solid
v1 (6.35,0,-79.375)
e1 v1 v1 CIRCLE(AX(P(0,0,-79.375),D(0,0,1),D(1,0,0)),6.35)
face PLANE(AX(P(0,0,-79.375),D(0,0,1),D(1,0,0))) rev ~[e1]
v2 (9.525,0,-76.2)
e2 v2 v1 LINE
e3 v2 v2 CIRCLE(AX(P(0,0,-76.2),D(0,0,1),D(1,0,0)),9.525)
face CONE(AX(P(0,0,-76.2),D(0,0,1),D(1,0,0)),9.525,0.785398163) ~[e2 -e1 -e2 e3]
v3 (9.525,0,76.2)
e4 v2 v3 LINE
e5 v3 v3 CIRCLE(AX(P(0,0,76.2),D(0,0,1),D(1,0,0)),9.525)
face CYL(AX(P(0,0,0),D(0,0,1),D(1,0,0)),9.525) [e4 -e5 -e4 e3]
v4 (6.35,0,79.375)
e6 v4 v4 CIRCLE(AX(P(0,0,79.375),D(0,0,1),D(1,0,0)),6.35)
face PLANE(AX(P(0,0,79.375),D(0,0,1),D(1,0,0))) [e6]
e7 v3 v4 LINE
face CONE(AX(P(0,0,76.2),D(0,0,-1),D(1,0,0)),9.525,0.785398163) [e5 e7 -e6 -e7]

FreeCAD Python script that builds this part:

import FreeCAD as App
import Part
import Sketcher
Q = App.Units.Quantity


def edges_at(feature, points):
    """Names of the edges that pass closest to the given points."""
    edges = feature.Shape.Edges
    near = lambda p: min(range(len(edges)), key=lambda i: edges[i].distToShape(Part.Vertex(*p))[0])
    return sorted({f"Edge{near(p) + 1}" for p in points})

doc = App.newDocument("Part")
body = doc.addObject("PartDesign::Body", "Body")

# Sketch on XY plane
sketch1 = doc.addObject("Sketcher::SketchObject", "Sketch")
body.addObject(sketch1)
sketch1.AttachmentSupport = (doc.XY_Plane, [""])
sketch1.MapMode = "FlatFace"
sketch1.addGeometry(Part.Circle(App.Vector(0, 0, 0), App.Vector(0, 0, 1), 10), False)
sketch1.addConstraint([
    Sketcher.Constraint("Coincident", 0, 3, -1, 1),
    Sketcher.Constraint("Diameter", 0, Q("0.75 in")),
])
pad1 = doc.addObject("PartDesign::Pad", "Pad")
body.addObject(pad1)
pad1.Profile = sketch1
pad1.Length = Q("6.25 in")
pad1.Midplane = True
doc.recompute()

chamfer = doc.addObject("PartDesign::Chamfer", "Chamfer")
body.addObject(chamfer)
chamfer.Base = (pad1, edges_at(pad1, [(-9.525, 0, 79.375), (-9.525, 0, -79.375)]))
chamfer.Size = Q("0.125 in")

doc.recompute()
